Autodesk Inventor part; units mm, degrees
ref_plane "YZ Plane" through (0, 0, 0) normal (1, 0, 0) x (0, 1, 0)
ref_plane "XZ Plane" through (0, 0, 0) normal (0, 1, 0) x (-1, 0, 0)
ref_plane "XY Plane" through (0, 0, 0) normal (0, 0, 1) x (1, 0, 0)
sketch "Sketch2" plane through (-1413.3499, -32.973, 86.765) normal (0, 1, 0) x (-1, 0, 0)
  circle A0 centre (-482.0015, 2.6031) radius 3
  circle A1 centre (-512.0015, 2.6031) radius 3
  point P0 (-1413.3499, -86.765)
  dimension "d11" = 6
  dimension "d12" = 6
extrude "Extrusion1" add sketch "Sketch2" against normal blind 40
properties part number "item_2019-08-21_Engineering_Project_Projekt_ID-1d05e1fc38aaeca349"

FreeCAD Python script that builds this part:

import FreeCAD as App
import Part
import Sketcher
Q = App.Units.Quantity

doc = App.newDocument("Part")
body = doc.addObject("PartDesign::Body", "Body")
body.AllowCompound = True

sketch1 = body.newObject("Sketcher::SketchObject", "Sketch")
sketch1.AttachmentSupport = (doc.getObject("XZ_Plane"), [""])
sketch1.MapMode = "FlatFace"
sketch1.AttachmentOffset = App.Placement(App.Vector(0, 0, 32.973), App.Rotation())
sketch1.addGeometry(Part.Circle(App.Vector(-931.3, 89.4, 0), App.Vector(0, 0, 1), 3), False)
sketch1.addGeometry(Part.Circle(App.Vector(-901.3, 89.4, 0), App.Vector(0, 0, 1), 3), False)
sketch1.addConstraint(Sketcher.Constraint("Equal", 0, 1))
sketch1.addConstraint(Sketcher.Constraint("Horizontal", 0, 3, 1, 3))
sketch1.addConstraint(Sketcher.Constraint("Diameter", 0, Q("6 mm")))
sketch1.addConstraint(Sketcher.Constraint("DistanceX", 0, 3, 1, 3, Q("30 mm")))
sketch1.addConstraint(Sketcher.Constraint("DistanceY", -1, 1, 0, 3, Q("89.368 mm")))
sketch1.addConstraint(Sketcher.Constraint("DistanceX", 0, 3, -1, 1, Q("931.3484 mm")))
pad1 = body.newObject("PartDesign::Pad", "Pad")
pad1.Profile = sketch1
pad1.Length = 40

doc.recompute()
